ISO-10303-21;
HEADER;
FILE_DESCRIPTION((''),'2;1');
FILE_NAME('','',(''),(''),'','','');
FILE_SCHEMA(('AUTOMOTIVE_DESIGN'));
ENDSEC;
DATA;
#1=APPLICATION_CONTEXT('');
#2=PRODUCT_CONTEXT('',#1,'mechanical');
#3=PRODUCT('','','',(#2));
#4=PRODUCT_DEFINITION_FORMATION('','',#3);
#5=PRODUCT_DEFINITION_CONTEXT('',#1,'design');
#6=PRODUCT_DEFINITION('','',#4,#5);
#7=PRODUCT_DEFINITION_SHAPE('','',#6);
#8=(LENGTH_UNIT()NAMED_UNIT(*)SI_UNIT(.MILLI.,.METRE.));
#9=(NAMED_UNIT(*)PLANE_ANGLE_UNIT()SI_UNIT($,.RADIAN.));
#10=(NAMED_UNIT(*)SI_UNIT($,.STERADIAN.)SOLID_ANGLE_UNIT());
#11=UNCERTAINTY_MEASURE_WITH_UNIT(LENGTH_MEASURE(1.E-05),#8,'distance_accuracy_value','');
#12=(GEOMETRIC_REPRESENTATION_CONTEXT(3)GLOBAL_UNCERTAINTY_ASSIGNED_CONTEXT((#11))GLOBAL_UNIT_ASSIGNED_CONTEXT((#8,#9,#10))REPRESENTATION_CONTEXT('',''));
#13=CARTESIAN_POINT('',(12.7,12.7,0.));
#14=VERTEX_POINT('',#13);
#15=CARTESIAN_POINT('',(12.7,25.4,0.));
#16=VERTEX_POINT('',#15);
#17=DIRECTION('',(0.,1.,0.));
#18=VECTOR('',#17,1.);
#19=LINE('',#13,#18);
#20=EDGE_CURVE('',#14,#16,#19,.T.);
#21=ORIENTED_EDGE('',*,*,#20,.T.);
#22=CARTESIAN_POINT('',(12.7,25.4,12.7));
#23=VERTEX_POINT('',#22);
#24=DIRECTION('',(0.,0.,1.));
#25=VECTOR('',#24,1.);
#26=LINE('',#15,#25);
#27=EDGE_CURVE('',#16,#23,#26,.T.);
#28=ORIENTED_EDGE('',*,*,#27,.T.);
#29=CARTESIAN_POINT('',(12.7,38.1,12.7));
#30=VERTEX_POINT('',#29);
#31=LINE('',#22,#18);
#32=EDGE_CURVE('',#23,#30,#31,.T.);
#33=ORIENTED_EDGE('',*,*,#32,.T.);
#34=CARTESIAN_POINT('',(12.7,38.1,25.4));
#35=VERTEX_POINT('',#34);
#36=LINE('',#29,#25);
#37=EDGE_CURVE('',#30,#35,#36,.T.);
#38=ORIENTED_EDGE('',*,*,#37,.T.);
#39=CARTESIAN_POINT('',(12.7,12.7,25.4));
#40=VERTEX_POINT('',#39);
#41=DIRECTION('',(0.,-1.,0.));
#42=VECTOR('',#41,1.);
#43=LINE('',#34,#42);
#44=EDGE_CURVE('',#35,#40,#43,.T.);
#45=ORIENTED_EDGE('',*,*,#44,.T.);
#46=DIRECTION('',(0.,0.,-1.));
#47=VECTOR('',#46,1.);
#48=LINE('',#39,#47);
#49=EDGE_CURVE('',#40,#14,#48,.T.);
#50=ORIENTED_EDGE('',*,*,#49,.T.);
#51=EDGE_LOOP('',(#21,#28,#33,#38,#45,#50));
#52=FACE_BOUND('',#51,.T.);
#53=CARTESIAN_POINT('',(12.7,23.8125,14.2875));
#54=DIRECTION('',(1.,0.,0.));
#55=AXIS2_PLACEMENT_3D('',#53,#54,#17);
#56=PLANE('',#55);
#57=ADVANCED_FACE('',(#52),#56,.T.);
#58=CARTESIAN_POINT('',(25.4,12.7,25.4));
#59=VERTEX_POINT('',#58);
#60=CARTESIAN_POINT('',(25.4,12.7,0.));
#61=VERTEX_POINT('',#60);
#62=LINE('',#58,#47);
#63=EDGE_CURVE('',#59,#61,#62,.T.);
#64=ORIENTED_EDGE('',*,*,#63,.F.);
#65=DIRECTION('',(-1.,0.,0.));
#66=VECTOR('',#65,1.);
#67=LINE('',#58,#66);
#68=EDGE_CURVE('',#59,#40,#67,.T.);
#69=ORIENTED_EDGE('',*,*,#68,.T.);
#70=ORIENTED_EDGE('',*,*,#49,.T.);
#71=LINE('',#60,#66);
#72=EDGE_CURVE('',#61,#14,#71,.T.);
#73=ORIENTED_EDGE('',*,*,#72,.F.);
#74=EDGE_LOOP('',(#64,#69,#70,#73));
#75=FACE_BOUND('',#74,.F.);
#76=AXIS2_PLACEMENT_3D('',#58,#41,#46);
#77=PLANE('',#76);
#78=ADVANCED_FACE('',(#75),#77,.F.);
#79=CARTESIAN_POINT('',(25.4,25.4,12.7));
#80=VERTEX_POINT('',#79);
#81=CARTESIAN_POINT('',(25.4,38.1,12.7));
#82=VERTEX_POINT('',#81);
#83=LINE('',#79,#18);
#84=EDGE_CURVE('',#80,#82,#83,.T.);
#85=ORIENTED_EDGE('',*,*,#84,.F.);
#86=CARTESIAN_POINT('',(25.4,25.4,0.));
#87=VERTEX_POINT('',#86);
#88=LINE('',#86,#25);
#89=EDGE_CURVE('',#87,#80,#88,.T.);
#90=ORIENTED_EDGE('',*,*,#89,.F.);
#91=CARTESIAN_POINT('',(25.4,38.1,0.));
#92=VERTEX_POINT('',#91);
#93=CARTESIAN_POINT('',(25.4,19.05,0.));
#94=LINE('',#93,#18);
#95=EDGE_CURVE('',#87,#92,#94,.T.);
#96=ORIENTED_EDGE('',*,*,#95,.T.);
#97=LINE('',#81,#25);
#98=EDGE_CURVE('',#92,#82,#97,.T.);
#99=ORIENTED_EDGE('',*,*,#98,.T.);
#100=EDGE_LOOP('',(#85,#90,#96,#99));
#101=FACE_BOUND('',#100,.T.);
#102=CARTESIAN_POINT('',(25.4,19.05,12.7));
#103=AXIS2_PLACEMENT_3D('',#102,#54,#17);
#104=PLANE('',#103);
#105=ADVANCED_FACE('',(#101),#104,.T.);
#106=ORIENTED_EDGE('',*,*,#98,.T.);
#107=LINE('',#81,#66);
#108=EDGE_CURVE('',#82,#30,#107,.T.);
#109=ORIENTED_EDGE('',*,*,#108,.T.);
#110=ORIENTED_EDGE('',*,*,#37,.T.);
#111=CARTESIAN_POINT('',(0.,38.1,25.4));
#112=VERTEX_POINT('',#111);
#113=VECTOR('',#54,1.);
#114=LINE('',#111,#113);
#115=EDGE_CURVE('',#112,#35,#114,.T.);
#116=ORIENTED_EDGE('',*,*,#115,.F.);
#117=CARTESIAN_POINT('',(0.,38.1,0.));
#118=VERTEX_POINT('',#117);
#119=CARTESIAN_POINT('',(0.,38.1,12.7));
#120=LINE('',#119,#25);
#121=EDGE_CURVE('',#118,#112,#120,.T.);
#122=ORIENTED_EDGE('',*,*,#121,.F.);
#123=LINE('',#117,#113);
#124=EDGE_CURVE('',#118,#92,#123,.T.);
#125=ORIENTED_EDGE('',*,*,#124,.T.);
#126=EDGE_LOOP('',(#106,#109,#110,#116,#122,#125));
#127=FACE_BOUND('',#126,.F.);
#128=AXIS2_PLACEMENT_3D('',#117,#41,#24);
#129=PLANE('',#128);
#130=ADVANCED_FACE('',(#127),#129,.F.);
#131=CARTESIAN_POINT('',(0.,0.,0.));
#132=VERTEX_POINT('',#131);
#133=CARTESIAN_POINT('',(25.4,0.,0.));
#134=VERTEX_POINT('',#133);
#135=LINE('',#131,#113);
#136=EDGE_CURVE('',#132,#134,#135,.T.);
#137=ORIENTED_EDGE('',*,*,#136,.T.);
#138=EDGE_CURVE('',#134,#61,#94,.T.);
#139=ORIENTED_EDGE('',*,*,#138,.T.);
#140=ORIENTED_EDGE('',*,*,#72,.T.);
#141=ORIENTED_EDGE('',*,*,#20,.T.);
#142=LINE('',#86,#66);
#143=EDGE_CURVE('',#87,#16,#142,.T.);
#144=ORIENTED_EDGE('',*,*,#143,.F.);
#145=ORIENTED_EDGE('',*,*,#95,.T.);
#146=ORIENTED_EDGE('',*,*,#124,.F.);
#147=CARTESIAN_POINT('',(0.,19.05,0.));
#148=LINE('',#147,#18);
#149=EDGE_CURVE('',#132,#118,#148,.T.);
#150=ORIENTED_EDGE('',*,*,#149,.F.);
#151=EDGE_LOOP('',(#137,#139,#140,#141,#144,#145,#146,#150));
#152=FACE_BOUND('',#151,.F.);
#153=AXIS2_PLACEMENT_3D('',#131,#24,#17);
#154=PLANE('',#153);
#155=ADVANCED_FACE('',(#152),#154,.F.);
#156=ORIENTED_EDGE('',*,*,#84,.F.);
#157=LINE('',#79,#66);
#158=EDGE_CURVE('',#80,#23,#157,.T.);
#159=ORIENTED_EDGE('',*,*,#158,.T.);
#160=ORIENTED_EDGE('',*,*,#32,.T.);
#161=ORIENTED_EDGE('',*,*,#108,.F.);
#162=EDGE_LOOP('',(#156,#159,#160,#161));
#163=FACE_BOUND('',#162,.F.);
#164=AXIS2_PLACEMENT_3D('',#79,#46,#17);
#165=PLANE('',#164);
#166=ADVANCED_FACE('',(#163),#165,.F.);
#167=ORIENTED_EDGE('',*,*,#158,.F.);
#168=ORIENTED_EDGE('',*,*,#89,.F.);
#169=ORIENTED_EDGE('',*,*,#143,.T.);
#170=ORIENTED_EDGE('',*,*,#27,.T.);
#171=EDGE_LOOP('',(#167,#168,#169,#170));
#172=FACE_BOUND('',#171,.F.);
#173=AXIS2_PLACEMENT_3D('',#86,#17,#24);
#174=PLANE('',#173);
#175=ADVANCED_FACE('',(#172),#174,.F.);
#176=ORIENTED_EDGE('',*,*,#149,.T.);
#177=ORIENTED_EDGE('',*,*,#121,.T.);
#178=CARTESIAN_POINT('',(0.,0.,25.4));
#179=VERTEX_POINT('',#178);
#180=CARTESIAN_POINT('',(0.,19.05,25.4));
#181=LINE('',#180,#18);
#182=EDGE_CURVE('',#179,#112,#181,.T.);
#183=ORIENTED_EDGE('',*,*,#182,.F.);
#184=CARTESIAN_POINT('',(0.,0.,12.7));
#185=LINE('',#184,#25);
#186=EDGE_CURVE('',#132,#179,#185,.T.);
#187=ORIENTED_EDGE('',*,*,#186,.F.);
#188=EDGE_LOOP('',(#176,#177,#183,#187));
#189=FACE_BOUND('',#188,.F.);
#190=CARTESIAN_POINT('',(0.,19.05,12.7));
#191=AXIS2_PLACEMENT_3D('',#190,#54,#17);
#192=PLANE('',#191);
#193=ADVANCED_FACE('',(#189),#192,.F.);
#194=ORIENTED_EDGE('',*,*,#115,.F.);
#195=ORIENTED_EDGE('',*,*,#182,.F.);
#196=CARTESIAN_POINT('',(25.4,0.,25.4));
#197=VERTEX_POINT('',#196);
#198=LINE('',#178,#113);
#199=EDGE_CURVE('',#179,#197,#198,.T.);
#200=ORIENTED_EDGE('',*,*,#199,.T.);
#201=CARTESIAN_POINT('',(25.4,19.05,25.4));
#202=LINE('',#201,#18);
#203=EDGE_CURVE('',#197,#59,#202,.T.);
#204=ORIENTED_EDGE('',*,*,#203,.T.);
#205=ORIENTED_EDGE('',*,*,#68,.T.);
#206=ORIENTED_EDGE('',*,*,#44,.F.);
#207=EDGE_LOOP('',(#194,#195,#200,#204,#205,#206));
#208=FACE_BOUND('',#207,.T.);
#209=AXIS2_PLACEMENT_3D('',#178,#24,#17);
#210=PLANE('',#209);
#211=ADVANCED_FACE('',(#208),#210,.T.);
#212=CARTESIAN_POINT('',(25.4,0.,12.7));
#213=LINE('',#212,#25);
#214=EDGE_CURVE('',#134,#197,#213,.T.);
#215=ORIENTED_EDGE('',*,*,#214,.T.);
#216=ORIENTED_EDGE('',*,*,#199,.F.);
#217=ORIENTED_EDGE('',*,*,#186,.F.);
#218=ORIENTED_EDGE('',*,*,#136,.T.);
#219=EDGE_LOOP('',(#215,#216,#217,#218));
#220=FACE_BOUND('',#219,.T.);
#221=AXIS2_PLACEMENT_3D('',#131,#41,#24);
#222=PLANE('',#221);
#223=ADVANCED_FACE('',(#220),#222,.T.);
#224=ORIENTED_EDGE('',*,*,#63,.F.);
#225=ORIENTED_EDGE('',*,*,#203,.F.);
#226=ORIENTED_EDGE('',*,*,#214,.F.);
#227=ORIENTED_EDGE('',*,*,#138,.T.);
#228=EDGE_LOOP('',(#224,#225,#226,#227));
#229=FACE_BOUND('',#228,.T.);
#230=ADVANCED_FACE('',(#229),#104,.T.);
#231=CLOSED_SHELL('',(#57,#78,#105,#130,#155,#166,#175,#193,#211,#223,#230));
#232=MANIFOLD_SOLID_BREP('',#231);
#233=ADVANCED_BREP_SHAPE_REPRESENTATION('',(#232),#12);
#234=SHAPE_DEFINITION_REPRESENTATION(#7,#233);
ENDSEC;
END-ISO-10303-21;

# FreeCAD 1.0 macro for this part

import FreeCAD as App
import Part
import Sketcher
Q = App.Units.Quantity


def add_polygon(sketch, points):
    """Adds a closed chain of lines whose ends are joined by coincident constraints."""
    first, n = sketch.GeometryCount, len(points)
    for a, b in zip(points, points[1:] + points[:1]):
        sketch.addGeometry(Part.LineSegment(App.Vector(*a, 0), App.Vector(*b, 0)), False)
    for i in range(n):
        sketch.addConstraint(Sketcher.Constraint("Coincident", first + i, 2, first + (i + 1) % n, 1))

doc = App.newDocument("Part")
body = doc.addObject("PartDesign::Body", "Body")

# Sketch on YZ plane
sketch1 = body.newObject("Sketcher::SketchObject", "Sketch")
sketch1.AttachmentSupport = (doc.getObject("YZ_Plane"), [""])
sketch1.MapMode = "FlatFace"
add_polygon(sketch1, [(0, 25), (0, 0), (38, 0), (38, 25)])  # lines 0-3
sketch1.addConstraint([
    Sketcher.Constraint("Vertical", 0),
    Sketcher.Constraint("Horizontal", 1),
    Sketcher.Constraint("Vertical", 2),
    Sketcher.Constraint("Horizontal", 3),
    Sketcher.Constraint("Coincident", 0, 2, -1, 1),
    Sketcher.Constraint("DistanceY", 0, 2, 0, 1, Q("1 in")),
    Sketcher.Constraint("DistanceX", 1, 1, 1, 2, Q("1.5 in")),
])
pad1 = body.newObject("PartDesign::Pad", "Pad")
pad1.Profile = sketch1
pad1.Length = Q("1 in")

# Sketch on YZ plane
sketch2 = body.newObject("Sketcher::SketchObject", "Sketch001")
sketch2.AttachmentSupport = (doc.getObject("YZ_Plane"), [""])
sketch2.MapMode = "FlatFace"
sketch2.AttachmentOffset = App.Placement(App.Vector(0, 0, 1 * 25.4), App.Rotation())
add_polygon(sketch2, [(13, 0), (25, 0), (25, 13), (38, 13), (38, 25), (13, 25)])  # lines 0-5
sketch2.addConstraint([
    Sketcher.Constraint("Horizontal", 0),
    Sketcher.Constraint("Vertical", 1),
    Sketcher.Constraint("Horizontal", 2),
    Sketcher.Constraint("Vertical", 3),
    Sketcher.Constraint("Horizontal", 4),
    Sketcher.Constraint("Vertical", 5),
    Sketcher.Constraint("PointOnObject", 0, 2, -1),
    Sketcher.Constraint("Equal", 0, 2),
    Sketcher.Constraint("Equal", 2, 1),
    Sketcher.Constraint("Equal", 1, 3),
    Sketcher.Constraint("DistanceX", 4, 2, 4, 1, Q("1 in")),
    Sketcher.Constraint("DistanceX", -1, 1, 0, 2, Q("1 in")),
])
pocket1 = body.newObject("PartDesign::Pocket", "Pocket")
pocket1.Profile = sketch2
pocket1.Length = Q("0.5 in")

doc.recompute()
